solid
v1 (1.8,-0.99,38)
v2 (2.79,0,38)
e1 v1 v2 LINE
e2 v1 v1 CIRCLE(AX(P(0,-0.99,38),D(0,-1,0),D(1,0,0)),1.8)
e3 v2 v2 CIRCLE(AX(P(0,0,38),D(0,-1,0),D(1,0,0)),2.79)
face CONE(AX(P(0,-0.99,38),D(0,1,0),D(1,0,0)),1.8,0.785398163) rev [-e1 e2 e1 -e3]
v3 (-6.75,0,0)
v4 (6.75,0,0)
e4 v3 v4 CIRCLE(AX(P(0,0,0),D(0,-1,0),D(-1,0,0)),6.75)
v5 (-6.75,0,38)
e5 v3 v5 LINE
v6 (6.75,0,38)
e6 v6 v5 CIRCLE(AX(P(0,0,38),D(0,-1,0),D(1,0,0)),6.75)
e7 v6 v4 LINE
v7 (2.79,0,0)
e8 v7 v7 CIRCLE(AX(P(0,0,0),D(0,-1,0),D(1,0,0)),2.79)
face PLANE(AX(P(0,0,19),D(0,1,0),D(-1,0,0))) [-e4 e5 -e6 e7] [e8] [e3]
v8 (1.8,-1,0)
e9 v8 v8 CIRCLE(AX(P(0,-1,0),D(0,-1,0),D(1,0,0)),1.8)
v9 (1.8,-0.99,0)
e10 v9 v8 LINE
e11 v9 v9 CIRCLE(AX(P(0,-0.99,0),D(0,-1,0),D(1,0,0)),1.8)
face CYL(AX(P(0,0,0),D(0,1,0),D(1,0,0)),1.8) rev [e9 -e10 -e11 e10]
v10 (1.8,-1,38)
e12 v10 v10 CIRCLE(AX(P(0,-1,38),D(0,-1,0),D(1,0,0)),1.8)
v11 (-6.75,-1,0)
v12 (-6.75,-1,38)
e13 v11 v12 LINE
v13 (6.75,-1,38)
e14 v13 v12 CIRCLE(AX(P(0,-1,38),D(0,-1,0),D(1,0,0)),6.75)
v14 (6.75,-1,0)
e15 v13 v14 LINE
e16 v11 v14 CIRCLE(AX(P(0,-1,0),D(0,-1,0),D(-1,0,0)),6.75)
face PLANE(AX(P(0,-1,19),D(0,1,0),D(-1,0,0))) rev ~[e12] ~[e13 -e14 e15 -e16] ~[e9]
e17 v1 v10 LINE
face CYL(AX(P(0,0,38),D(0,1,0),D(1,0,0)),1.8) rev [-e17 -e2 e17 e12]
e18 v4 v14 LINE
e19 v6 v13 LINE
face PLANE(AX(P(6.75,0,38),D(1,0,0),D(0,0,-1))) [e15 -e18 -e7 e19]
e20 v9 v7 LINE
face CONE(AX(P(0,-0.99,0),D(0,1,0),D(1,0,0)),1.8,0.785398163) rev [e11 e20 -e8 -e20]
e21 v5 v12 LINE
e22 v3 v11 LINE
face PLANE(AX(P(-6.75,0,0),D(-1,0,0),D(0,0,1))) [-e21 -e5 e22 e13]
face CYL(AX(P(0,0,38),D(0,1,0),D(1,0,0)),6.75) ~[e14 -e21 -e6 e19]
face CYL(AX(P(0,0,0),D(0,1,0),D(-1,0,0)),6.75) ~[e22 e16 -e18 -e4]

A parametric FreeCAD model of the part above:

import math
import FreeCAD as App
import Part
import Sketcher

V = App.Vector
Q = App.Units.Quantity


def edges_at(feature, points):
    """Names of the edges that pass closest to the given points."""
    edges = feature.Shape.Edges
    near = lambda p: min(range(len(edges)), key=lambda i: edges[i].distToShape(Part.Vertex(*p))[0])
    return sorted({f"Edge{near(p) + 1}" for p in points})

doc = App.newDocument("Part")
body = doc.addObject("PartDesign::Body", "Body")

# Sketch on XZ plane
sketch1 = body.newObject("Sketcher::SketchObject", "Sketch")
sketch1.AttachmentSupport = (doc.getObject("XZ_Plane"), [""])
sketch1.MapMode = "FlatFace"
sketch1.addGeometry([
    Part.LineSegment(V(6.75, 0, 0), V(6.75, 38, 0)),  # 0
    Part.ArcOfCircle(Part.Circle(V(0, 38, 0), V(0, 0, 1), 6.75), math.radians(0), math.radians(180)),  # 1
    Part.LineSegment(V(-6.75, 38, 0), V(-6.75, 0, 0)),  # 2
    Part.ArcOfCircle(Part.Circle(V(0, 0, 0), V(0, 0, 1), 6.75), math.radians(180), math.radians(360)),  # 3
    Part.Circle(V(0, 0, 0), V(0, 0, 1), 1.8),  # 4
    Part.Circle(V(0, 38, 0), V(0, 0, 1), 1.8),  # 5
], False)
sketch1.addConstraint([
    Sketcher.Constraint("Tangent", 0, 2, 1, 1),
    Sketcher.Constraint("Tangent", 1, 2, 2, 1),
    Sketcher.Constraint("Tangent", 2, 2, 3, 1),
    Sketcher.Constraint("Tangent", 3, 2, 0, 1),
    Sketcher.Constraint("Vertical", 0),
    Sketcher.Constraint("Vertical", 2),
    Sketcher.Constraint("Coincident", 3, 3, -1, 1),
    Sketcher.Constraint("Coincident", 4, 3, -1, 1),
    Sketcher.Constraint("Coincident", 5, 3, 1, 3),
    Sketcher.Constraint("Equal", 4, 5),
    Sketcher.Constraint("Diameter", 4, Q("3.6 mm")),
    Sketcher.Constraint("DistanceY", 0, 1, 0, 2, Q("38 mm")),
    Sketcher.Constraint("Radius", 1, Q("6.75 mm")),
])
pad1 = body.newObject("PartDesign::Pad", "Pad")
pad1.Profile = sketch1
pad1.Length = 1
doc.recompute()

chamfer = body.newObject("PartDesign::Chamfer", "Chamfer")
chamfer.Base = (pad1, edges_at(pad1, [(-1.8, 0, 0), (-1.8, 0, 38)]))
chamfer.Size = 0.99

doc.recompute()
